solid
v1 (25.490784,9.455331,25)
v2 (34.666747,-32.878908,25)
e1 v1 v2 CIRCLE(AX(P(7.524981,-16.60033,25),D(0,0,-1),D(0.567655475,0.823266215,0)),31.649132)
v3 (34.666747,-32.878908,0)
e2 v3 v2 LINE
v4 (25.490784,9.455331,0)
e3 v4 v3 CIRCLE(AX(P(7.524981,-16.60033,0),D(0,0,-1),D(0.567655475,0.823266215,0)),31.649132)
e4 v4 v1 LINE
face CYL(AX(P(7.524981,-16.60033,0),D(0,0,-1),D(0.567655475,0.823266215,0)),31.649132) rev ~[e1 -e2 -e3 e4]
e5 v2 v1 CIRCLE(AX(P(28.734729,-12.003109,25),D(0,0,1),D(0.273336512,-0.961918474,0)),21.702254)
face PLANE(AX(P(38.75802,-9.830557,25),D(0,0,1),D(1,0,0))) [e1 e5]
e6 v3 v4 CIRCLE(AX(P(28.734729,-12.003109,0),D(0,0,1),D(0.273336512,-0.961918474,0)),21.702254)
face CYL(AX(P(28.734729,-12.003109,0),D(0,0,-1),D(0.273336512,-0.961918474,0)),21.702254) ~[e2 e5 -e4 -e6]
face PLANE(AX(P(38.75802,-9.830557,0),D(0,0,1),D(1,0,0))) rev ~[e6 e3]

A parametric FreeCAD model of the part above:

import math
import FreeCAD as App
import Part
import Sketcher
Q = App.Units.Quantity

doc = App.newDocument("Part")
body = doc.addObject("PartDesign::Body", "Body")

# Sketch on XY plane
sketch1 = body.newObject("Sketcher::SketchObject", "Sketch")
sketch1.AttachmentSupport = (doc.getObject("XY_Plane"), [""])
sketch1.MapMode = "FlatFace"
sketch1.addGeometry([
    Part.ArcOfCircle(Part.Circle(App.Vector(8, -17, 0), App.Vector(0, 0, 1), 32), math.radians(-31), math.radians(55)),
    Part.ArcOfCircle(Part.Circle(App.Vector(29, -12, 0), App.Vector(0, 0, 1), 22), math.radians(-74), math.radians(99)),
], False)
sketch1.addConstraint([
    Sketcher.Constraint("Coincident", 0, 1, 1, 1),
    Sketcher.Constraint("Coincident", 1, 2, 0, 2),
    Sketcher.Constraint("Radius", 0, Q("31.649132 mm")),
    Sketcher.Constraint("Radius", 1, Q("21.702254 mm")),
    Sketcher.Constraint("DistanceY", 0, 1, 1, 3, Q("20.875799 mm")),
    Sketcher.Constraint("DistanceX", -1, 1, 0, 3, Q("7.524981 mm")),
    Sketcher.Constraint("DistanceY", 0, 3, -1, 1, Q("16.60033 mm")),
    Sketcher.Constraint("DistanceX", -1, 1, 1, 3, Q("28.734729 mm")),
])
pad1 = body.newObject("PartDesign::Pad", "Pad")
pad1.Profile = sketch1
pad1.Length = 25

doc.recompute()
